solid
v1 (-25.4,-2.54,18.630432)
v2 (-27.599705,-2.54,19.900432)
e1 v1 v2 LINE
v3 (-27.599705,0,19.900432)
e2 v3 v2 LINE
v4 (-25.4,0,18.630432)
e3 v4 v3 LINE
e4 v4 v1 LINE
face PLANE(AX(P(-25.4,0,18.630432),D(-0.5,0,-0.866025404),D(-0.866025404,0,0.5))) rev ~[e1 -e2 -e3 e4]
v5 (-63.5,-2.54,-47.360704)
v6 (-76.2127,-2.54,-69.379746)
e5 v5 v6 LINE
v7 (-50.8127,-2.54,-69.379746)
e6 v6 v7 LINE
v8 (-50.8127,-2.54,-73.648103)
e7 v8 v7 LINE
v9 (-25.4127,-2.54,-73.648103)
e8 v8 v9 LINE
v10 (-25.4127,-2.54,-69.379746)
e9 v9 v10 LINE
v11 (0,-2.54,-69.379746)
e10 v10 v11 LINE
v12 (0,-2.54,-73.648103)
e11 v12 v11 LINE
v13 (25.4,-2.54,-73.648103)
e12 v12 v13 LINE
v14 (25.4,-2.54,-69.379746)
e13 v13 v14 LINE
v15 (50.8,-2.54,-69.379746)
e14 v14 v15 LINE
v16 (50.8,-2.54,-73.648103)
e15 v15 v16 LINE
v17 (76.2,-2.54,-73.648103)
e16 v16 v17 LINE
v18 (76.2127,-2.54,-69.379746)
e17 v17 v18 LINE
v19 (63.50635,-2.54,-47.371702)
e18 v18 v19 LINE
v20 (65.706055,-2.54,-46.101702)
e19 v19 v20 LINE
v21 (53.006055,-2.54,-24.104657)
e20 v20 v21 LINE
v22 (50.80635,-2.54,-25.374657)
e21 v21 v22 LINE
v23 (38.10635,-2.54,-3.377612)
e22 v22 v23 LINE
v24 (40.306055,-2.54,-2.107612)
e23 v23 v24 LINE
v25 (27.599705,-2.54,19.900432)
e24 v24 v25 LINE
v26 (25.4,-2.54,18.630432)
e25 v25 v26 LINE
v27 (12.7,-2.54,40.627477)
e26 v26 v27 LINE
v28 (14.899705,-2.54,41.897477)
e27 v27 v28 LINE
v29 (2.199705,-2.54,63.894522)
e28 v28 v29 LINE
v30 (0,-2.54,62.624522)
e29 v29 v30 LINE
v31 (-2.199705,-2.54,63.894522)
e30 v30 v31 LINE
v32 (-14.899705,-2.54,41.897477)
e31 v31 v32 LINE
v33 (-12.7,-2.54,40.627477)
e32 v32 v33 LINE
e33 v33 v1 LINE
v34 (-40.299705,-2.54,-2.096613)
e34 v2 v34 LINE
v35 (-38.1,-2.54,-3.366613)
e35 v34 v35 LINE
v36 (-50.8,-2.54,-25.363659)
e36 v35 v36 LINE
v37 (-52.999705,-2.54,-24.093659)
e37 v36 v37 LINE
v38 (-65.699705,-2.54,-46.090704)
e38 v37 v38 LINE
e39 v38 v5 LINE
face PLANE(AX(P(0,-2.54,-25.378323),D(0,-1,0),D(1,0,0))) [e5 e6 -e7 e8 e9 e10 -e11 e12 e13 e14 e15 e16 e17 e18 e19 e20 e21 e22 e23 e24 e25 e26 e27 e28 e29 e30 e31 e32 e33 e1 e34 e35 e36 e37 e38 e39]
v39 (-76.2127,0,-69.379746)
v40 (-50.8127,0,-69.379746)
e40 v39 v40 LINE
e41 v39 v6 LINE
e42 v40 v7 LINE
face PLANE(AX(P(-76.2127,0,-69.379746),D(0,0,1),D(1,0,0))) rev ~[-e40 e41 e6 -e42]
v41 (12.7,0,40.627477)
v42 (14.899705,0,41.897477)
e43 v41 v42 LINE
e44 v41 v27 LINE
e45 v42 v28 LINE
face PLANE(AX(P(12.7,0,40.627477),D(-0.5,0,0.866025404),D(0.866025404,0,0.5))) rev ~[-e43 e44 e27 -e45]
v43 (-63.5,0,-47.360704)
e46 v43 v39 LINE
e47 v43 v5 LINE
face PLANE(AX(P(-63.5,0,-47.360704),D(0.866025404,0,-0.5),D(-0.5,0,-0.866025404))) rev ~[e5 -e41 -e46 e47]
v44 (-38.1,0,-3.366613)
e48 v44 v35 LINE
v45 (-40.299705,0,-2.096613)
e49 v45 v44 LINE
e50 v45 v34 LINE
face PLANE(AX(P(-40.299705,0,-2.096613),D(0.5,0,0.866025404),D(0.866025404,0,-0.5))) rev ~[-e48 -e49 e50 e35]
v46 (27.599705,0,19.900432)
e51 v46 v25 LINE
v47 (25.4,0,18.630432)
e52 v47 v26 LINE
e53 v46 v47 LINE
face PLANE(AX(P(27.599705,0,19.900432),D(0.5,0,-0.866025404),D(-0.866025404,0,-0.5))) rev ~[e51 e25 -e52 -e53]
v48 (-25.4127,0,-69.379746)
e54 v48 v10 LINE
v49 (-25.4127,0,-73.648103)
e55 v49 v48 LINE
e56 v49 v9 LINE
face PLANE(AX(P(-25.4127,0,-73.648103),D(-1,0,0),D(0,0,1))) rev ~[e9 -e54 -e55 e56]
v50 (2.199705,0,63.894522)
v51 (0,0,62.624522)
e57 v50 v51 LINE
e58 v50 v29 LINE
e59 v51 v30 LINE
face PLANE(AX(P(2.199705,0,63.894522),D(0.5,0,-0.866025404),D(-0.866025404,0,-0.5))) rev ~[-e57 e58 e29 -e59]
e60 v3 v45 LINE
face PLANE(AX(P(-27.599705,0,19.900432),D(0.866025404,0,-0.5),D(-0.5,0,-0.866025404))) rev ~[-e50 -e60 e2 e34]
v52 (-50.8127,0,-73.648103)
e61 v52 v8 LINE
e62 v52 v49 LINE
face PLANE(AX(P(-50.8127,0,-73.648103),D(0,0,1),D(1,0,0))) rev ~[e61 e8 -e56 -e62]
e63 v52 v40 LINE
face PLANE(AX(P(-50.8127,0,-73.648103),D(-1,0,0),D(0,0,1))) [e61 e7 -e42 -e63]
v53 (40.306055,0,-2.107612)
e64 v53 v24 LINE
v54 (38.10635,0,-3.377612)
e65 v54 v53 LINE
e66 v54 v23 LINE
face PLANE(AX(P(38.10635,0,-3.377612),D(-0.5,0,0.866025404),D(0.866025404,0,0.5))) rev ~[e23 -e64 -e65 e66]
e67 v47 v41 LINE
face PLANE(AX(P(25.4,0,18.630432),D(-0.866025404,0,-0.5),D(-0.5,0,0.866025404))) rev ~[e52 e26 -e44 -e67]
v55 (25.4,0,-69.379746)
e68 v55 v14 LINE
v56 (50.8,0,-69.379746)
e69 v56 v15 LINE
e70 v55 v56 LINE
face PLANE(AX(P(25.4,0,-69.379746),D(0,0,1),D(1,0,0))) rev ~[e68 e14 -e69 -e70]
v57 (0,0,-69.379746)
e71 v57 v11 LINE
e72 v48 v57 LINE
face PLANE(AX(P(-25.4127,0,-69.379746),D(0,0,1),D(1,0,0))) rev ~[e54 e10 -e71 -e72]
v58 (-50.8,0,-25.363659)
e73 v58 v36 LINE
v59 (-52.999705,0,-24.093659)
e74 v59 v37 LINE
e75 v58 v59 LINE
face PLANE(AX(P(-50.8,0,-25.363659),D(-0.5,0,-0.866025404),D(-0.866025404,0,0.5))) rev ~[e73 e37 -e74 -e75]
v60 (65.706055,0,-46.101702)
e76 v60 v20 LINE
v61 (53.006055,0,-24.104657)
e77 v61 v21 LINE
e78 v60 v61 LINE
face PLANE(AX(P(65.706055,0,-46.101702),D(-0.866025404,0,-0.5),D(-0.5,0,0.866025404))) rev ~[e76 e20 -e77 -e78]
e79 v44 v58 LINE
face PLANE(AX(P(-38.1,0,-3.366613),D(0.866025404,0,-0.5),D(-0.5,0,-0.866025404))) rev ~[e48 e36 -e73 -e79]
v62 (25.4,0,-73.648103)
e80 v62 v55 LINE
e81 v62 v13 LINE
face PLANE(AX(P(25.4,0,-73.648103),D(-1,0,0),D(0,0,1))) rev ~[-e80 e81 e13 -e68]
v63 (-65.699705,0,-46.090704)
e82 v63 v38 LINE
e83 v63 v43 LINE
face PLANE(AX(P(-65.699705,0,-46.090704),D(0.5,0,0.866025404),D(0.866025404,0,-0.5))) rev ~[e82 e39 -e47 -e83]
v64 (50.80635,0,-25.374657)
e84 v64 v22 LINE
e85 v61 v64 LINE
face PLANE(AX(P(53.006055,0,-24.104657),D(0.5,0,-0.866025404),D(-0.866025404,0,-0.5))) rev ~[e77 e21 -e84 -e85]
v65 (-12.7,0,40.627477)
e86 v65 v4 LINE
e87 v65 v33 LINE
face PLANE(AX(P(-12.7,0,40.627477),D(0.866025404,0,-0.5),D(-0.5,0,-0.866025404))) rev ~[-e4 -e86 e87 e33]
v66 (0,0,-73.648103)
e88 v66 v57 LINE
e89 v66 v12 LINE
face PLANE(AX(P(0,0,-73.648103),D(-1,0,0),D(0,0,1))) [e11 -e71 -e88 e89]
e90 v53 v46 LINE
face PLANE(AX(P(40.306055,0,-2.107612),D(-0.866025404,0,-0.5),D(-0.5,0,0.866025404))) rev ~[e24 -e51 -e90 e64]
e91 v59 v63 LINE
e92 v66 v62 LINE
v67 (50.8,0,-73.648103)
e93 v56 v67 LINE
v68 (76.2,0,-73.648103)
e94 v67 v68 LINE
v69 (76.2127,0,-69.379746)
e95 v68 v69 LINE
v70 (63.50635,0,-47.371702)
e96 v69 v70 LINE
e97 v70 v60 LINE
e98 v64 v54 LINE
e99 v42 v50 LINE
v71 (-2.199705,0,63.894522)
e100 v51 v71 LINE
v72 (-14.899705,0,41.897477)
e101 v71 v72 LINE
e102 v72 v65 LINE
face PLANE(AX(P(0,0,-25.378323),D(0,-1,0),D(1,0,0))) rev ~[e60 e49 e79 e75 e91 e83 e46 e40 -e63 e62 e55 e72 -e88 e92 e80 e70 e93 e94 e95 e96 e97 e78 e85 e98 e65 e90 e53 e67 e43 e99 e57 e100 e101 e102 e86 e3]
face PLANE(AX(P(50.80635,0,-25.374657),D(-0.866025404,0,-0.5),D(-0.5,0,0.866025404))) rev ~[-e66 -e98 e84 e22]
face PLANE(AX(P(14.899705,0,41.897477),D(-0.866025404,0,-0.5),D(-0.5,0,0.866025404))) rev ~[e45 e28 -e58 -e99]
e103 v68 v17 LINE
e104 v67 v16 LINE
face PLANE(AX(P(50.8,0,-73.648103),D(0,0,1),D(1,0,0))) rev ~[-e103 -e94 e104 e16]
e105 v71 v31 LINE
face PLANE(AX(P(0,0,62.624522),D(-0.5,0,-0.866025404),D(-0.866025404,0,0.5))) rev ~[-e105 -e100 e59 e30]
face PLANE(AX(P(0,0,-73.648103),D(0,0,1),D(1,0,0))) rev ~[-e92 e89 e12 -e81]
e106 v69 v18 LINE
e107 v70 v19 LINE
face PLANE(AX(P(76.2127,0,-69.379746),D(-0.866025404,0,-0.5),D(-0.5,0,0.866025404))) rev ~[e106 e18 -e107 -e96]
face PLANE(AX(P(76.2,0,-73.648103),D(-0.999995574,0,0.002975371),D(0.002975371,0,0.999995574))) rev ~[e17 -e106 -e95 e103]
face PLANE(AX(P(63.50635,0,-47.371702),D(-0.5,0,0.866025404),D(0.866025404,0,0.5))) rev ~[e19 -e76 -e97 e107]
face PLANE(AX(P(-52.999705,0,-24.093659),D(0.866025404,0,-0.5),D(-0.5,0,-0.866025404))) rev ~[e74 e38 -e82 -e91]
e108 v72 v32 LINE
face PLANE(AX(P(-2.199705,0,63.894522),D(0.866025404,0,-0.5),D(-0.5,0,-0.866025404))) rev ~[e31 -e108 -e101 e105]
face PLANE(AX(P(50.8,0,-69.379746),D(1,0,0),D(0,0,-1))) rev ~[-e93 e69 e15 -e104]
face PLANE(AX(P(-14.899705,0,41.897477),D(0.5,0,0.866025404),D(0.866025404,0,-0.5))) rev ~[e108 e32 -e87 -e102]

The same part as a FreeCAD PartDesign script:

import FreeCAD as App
import Part
import Sketcher

V = App.Vector
Q = App.Units.Quantity

doc = App.newDocument("Part")
body = doc.addObject("PartDesign::Body", "Body")

# Sketch on XZ plane
sketch1 = doc.addObject("Sketcher::SketchObject", "Sketch")
body.addObject(sketch1)
sketch1.AttachmentSupport = (doc.XZ_Plane, [""])
sketch1.MapMode = "FlatFace"
sketch1.addGeometry([
    Part.LineSegment(V(-12.7, 40.6, 0), V(-25.4, 18.6, 0)),  # 0
    Part.LineSegment(V(-25.4, 18.6, 0), V(-27.6, 19.9, 0)),  # 1
    Part.LineSegment(V(-27.6, 19.9, 0), V(-40.3, -2.1, 0)),  # 2
    Part.LineSegment(V(-40.3, -2.1, 0), V(-38.1, -3.4, 0)),  # 3
    Part.LineSegment(V(-38.1, -3.4, 0), V(-50.8, -25.4, 0)),  # 4
    Part.LineSegment(V(-50.8, -25.4, 0), V(-53, -24.1, 0)),  # 5
    Part.LineSegment(V(-53, -24.1, 0), V(-65.7, -46.1, 0)),  # 6
    Part.LineSegment(V(-65.7, -46.1, 0), V(-63.5, -47.4, 0)),  # 7
    Part.LineSegment(V(-63.5, -47.4, 0), V(-76.2, -69.4, 0)),  # 8
    Part.LineSegment(V(-76.2, -69.4, 0), V(-50.8, -69.4, 0)),  # 9
    Part.LineSegment(V(-50.8, -69.4, 0), V(-50.8, -73.6, 0)),  # 10
    Part.LineSegment(V(-50.8, -73.6, 0), V(-25.4, -73.6, 0)),  # 11
    Part.LineSegment(V(-25.4, -73.6, 0), V(-25.4, -69.4, 0)),  # 12
    Part.LineSegment(V(-25.4, -69.4, 0), V(0, -69.4, 0)),  # 13
    Part.LineSegment(V(0, -69.4, 0), V(0, -73.6, 0)),  # 14
    Part.LineSegment(V(0, -73.6, 0), V(25.4, -73.6, 0)),  # 15
    Part.LineSegment(V(25.4, -73.6, 0), V(25.4, -69.4, 0)),  # 16
    Part.LineSegment(V(25.4, -69.4, 0), V(50.8, -69.4, 0)),  # 17
    Part.LineSegment(V(50.8, -69.4, 0), V(50.8, -73.6, 0)),  # 18
    Part.LineSegment(V(50.8, -73.6, 0), V(76.2, -73.6, 0)),  # 19
    Part.LineSegment(V(76.2, -73.6, 0), V(76.2, -69.4, 0)),  # 20
    Part.LineSegment(V(76.2, -69.4, 0), V(63.5, -47.4, 0)),  # 21
    Part.LineSegment(V(63.5, -47.4, 0), V(65.7, -46.1, 0)),  # 22
    Part.LineSegment(V(65.7, -46.1, 0), V(53, -24.1, 0)),  # 23
    Part.LineSegment(V(53, -24.1, 0), V(50.8, -25.4, 0)),  # 24
    Part.LineSegment(V(50.8, -25.4, 0), V(38.1, -3.4, 0)),  # 25
    Part.LineSegment(V(38.1, -3.4, 0), V(40.3, -2.1, 0)),  # 26
    Part.LineSegment(V(40.3, -2.1, 0), V(27.6, 19.9, 0)),  # 27
    Part.LineSegment(V(27.6, 19.9, 0), V(25.4, 18.6, 0)),  # 28
    Part.LineSegment(V(25.4, 18.6, 0), V(12.7, 40.6, 0)),  # 29
    Part.LineSegment(V(12.7, 40.6, 0), V(14.9, 41.9, 0)),  # 30
    Part.LineSegment(V(14.9, 41.9, 0), V(2.2, 63.9, 0)),  # 31
    Part.LineSegment(V(2.2, 63.9, 0), V(0, 62.6, 0)),  # 32
    Part.LineSegment(V(0, 62.6, 0), V(-2.2, 63.9, 0)),  # 33
    Part.LineSegment(V(-2.2, 63.9, 0), V(-14.9, 41.9, 0)),  # 34
    Part.LineSegment(V(-14.9, 41.9, 0), V(-12.7, 40.6, 0)),  # 35
], False)
sketch1.addConstraint([
    Sketcher.Constraint("Coincident", 0, 2, 1, 1),
    Sketcher.Constraint("Coincident", 1, 2, 2, 1),
    Sketcher.Constraint("Coincident", 2, 2, 3, 1),
    Sketcher.Constraint("Coincident", 3, 2, 4, 1),
    Sketcher.Constraint("Coincident", 4, 2, 5, 1),
    Sketcher.Constraint("Coincident", 5, 2, 6, 1),
    Sketcher.Constraint("Coincident", 6, 2, 7, 1),
    Sketcher.Constraint("Coincident", 7, 2, 8, 1),
    Sketcher.Constraint("Coincident", 8, 2, 9, 1),
    Sketcher.Constraint("Coincident", 9, 2, 10, 1),
    Sketcher.Constraint("Coincident", 10, 2, 11, 1),
    Sketcher.Constraint("Coincident", 11, 2, 12, 1),
    Sketcher.Constraint("Coincident", 12, 2, 13, 1),
    Sketcher.Constraint("Coincident", 13, 2, 14, 1),
    Sketcher.Constraint("Coincident", 14, 2, 15, 1),
    Sketcher.Constraint("Coincident", 15, 2, 16, 1),
    Sketcher.Constraint("Coincident", 16, 2, 17, 1),
    Sketcher.Constraint("Coincident", 17, 2, 18, 1),
    Sketcher.Constraint("Coincident", 18, 2, 19, 1),
    Sketcher.Constraint("Coincident", 19, 2, 20, 1),
    Sketcher.Constraint("Coincident", 20, 2, 21, 1),
    Sketcher.Constraint("Coincident", 21, 2, 22, 1),
    Sketcher.Constraint("Coincident", 22, 2, 23, 1),
    Sketcher.Constraint("Coincident", 23, 2, 24, 1),
    Sketcher.Constraint("Coincident", 24, 2, 25, 1),
    Sketcher.Constraint("Coincident", 25, 2, 26, 1),
    Sketcher.Constraint("Coincident", 26, 2, 27, 1),
    Sketcher.Constraint("Coincident", 27, 2, 28, 1),
    Sketcher.Constraint("Coincident", 28, 2, 29, 1),
    Sketcher.Constraint("Coincident", 29, 2, 30, 1),
    Sketcher.Constraint("Coincident", 30, 2, 31, 1),
    Sketcher.Constraint("Coincident", 31, 2, 32, 1),
    Sketcher.Constraint("Coincident", 32, 2, 33, 1),
    Sketcher.Constraint("Coincident", 33, 2, 34, 1),
    Sketcher.Constraint("Coincident", 34, 2, 35, 1),
    Sketcher.Constraint("Coincident", 35, 2, 0, 1),
    Sketcher.Constraint("Horizontal", 9),
    Sketcher.Constraint("Vertical", 10),
    Sketcher.Constraint("Horizontal", 11),
    Sketcher.Constraint("Vertical", 12),
    Sketcher.Constraint("Horizontal", 13),
    Sketcher.Constraint("Vertical", 14),
    Sketcher.Constraint("Horizontal", 15),
    Sketcher.Constraint("Vertical", 16),
    Sketcher.Constraint("Horizontal", 17),
    Sketcher.Constraint("Vertical", 18),
    Sketcher.Constraint("Horizontal", 19),
    Sketcher.Constraint("Symmetric", 8, 2, 20, 2, -2),
    Sketcher.Constraint("Symmetric", 1, 2, 27, 2, -2),
    Sketcher.Constraint("Symmetric", 0, 2, 28, 2, -2),
    Sketcher.Constraint("Symmetric", 31, 2, 33, 2, -2),
    Sketcher.Constraint("Symmetric", 30, 2, 34, 2, -2),
    Sketcher.Constraint("Symmetric", 29, 2, 35, 2, -2),
    Sketcher.Constraint("PointOnObject", 13, 2, -2),
    Sketcher.Constraint("PointOnObject", 32, 2, -2),
    Sketcher.Constraint("Perpendicular", 0, 1),
    Sketcher.Constraint("Perpendicular", 1, 2),
    Sketcher.Constraint("Perpendicular", 2, 3),
    Sketcher.Constraint("Perpendicular", 3, 4),
    Sketcher.Constraint("Perpendicular", 4, 5),
    Sketcher.Constraint("Perpendicular", 5, 6),
    Sketcher.Constraint("Perpendicular", 6, 7),
    Sketcher.Constraint("Perpendicular", 7, 8),
    Sketcher.Constraint("Perpendicular", 21, 22),
    Sketcher.Constraint("Perpendicular", 22, 23),
    Sketcher.Constraint("Perpendicular", 23, 24),
    Sketcher.Constraint("Perpendicular", 24, 25),
    Sketcher.Constraint("Perpendicular", 25, 26),
    Sketcher.Constraint("Perpendicular", 26, 27),
    Sketcher.Constraint("Perpendicular", 27, 28),
    Sketcher.Constraint("Perpendicular", 29, 30),
    Sketcher.Constraint("Perpendicular", 30, 31),
    Sketcher.Constraint("Perpendicular", 31, 32),
    Sketcher.Constraint("Horizontal", 9, 2, 12, 2),
    Sketcher.Constraint("Horizontal", 11, 2, 14, 2),
    Sketcher.Constraint("Horizontal", 13, 2, 16, 2),
    Sketcher.Constraint("Horizontal", 15, 2, 18, 2),
    Sketcher.Constraint("Vertical", 16, 2, 28, 2),
    Sketcher.Constraint("Equal", 9, 11),
    Sketcher.Constraint("Equal", 11, 15),
    Sketcher.Constraint("Equal", 15, 17),
    Sketcher.Constraint("Equal", 17, 19),
    Sketcher.Constraint("Equal", 0, 2),
    Sketcher.Constraint("Equal", 1, 3),
    Sketcher.Constraint("Equal", 2, 4),
    Sketcher.Constraint("Equal", 3, 5),
    Sketcher.Constraint("Equal", 4, 6),
    Sketcher.Constraint("Equal", 5, 7),
    Sketcher.Constraint("Equal", 7, 22),
    Sketcher.Constraint("Equal", 6, 23),
    Sketcher.Constraint("Equal", 22, 24),
    Sketcher.Constraint("Equal", 23, 25),
    Sketcher.Constraint("Equal", 21, 27),
    Sketcher.Constraint("Equal", 28, 30),
    Sketcher.Constraint("Equal", 29, 31),
    Sketcher.Constraint("Equal", 30, 32),
    Sketcher.Constraint("DistanceX", 9, 1, 9, 2, Q("1 in")),
    Sketcher.Constraint("Distance", 0, Q("1 in")),
    Sketcher.Constraint("Distance", 1, Q("0.1 in")),
    Sketcher.Constraint("Distance", 8, Q("1.001 in")),
    Sketcher.Constraint("DistanceY", 10, 2, 7, 2, Q("26.287399 mm")),
    Sketcher.Constraint("DistanceY", -1, 1, 0, 2, Q("18.630432 mm")),
])
pad1 = doc.addObject("PartDesign::Pad", "Pad")
body.addObject(pad1)
pad1.Profile = sketch1
pad1.Length = Q("0.1 in")

doc.recompute()
